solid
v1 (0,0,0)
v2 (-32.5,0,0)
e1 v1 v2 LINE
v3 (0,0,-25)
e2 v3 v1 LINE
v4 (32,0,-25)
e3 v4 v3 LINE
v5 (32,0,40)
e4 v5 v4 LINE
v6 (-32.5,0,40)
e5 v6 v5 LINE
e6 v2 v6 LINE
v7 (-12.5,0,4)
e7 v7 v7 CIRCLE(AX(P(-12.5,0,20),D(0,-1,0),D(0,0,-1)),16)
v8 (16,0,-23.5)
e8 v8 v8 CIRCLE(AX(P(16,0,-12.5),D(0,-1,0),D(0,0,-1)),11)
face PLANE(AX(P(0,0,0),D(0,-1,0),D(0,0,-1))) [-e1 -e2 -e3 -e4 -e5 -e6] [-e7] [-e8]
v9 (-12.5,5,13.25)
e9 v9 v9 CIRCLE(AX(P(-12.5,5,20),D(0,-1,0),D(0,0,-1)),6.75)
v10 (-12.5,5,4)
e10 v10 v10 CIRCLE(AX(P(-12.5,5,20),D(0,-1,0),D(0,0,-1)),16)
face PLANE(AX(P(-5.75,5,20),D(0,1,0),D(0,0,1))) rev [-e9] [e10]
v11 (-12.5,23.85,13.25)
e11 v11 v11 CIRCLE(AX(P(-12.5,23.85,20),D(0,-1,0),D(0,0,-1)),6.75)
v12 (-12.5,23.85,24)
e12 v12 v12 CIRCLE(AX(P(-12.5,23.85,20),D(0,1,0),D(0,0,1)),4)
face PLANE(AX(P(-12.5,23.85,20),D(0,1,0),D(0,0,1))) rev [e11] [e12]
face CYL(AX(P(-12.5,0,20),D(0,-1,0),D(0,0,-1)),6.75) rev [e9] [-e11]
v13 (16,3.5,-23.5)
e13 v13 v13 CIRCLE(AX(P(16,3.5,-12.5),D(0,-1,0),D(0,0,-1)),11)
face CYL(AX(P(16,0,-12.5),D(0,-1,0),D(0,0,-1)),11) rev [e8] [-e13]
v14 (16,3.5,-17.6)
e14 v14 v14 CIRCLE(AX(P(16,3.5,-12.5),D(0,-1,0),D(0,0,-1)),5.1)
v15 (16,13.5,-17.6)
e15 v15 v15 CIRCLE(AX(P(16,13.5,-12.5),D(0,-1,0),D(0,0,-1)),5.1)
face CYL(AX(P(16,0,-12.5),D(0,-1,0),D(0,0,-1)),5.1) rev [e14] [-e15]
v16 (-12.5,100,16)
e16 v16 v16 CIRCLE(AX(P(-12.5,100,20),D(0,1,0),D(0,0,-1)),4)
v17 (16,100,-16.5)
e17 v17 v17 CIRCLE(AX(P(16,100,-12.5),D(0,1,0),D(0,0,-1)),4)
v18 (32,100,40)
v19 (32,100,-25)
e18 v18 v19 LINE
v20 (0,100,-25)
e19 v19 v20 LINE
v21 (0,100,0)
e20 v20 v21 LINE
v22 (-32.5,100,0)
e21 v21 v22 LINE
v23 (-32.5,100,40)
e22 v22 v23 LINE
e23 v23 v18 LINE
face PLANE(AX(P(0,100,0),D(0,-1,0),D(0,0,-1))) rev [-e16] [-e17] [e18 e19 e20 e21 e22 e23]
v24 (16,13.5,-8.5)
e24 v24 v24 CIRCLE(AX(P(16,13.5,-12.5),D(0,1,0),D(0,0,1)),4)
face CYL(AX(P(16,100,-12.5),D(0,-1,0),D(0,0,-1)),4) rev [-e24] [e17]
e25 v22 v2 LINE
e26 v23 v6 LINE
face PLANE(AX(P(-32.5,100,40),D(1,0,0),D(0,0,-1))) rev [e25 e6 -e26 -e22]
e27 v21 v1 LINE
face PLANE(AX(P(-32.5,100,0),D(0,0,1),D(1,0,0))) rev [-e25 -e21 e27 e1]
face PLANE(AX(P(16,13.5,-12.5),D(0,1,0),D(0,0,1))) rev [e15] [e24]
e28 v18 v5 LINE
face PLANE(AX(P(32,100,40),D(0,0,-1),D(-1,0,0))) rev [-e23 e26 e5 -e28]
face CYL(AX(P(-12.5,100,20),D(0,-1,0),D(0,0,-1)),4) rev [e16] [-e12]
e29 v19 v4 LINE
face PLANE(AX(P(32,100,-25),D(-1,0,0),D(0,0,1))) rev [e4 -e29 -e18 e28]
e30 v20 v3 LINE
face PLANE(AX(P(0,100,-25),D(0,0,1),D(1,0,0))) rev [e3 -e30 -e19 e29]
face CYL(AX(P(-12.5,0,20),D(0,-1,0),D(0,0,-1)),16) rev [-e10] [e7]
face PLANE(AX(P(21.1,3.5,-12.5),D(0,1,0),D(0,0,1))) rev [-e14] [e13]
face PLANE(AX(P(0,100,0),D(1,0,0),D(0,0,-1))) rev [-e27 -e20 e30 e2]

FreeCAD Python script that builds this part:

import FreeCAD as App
import Part
import Sketcher

V = App.Vector
Q = App.Units.Quantity


def add_polygon(sketch, points):
    """Adds a closed chain of lines whose ends are joined by coincident constraints."""
    first, n = sketch.GeometryCount, len(points)
    for a, b in zip(points, points[1:] + points[:1]):
        sketch.addGeometry(Part.LineSegment(App.Vector(*a, 0), App.Vector(*b, 0)), False)
    for i in range(n):
        sketch.addConstraint(Sketcher.Constraint("Coincident", first + i, 2, first + (i + 1) % n, 1))

doc = App.newDocument("Part")
params = doc.addObject("Spreadsheet::Sheet", "Params")
for row, (alias, value) in enumerate([
    ("sketch1_diameter", "8 mm"),
    ("sketch1_width", "32 mm"),
    ("sketch1_height", "40 mm"),
    ("sketch1_height2", "65 mm"),
    ("sketch1_width2", "32.5 mm"),
    ("pad1_length", "100 mm"),
    ("sketch2_diameter", "13.5 mm"),
    ("hole_diameter", "13.5 mm"),
    ("hole_depth", "23.85 mm"),
    ("hole_cbore_diameter", "32 mm"),
    ("hole_cbore_depth", "5 mm"),
    ("sketch3_diameter", "10.2 mm"),
    ("hole2_diameter", "10.2 mm"),
    ("hole2_depth", "13.5 mm"),
    ("hole2_cbore_diameter", "22 mm"),
    ("hole2_cbore_depth", "3.5 mm"),
], start=1):
    params.set(f"A{row}", alias)
    params.set(f"B{row}", "=" + value)
    params.setAlias(f"B{row}", alias)

body = doc.addObject("PartDesign::Body", "Body")

sketch1 = body.newObject("Sketcher::SketchObject", "Sketch")
sketch1.AttachmentSupport = (doc.getObject("XZ_Plane"), [""])
sketch1.MapMode = "FlatFace"
add_polygon(sketch1, [(0, 0), (-32.5, 0), (-32.5, 40), (32, 40), (32, -25), (0, -25)])
sketch1.addGeometry(Part.Circle(V(-12.5, 20, 0), V(0, 0, 1), 4), False)
sketch1.addGeometry(Part.Circle(V(16, -12.5, 0), V(0, 0, 1), 4), False)
sketch1.addConstraint([
    Sketcher.Constraint("Horizontal", 0),
    Sketcher.Constraint("Vertical", 1),
    Sketcher.Constraint("Horizontal", 2),
    Sketcher.Constraint("Vertical", 3),
    Sketcher.Constraint("Horizontal", 4),
    Sketcher.Constraint("Vertical", 5),
    Sketcher.Constraint("Coincident", 5, 2, -1, 1),
    Sketcher.Constraint("Equal", 6, 7),
    Sketcher.Constraint("Diameter", 6, Q("8 mm")),
    Sketcher.Constraint("DistanceX", 4, 2, 4, 1, Q("32 mm")),
    Sketcher.Constraint("DistanceY", 1, 1, 1, 2, Q("40 mm")),
    Sketcher.Constraint("DistanceY", 3, 2, 3, 1, Q("65 mm")),
    Sketcher.Constraint("DistanceX", 0, 2, 0, 1, Q("32.5 mm")),
    Sketcher.Constraint("DistanceY", -1, 1, 6, 3, Q("20 mm")),
    Sketcher.Constraint("DistanceX", -1, 1, 7, 3, Q("16 mm")),
    Sketcher.Constraint("DistanceX", 0, 2, 6, 3, Q("20 mm")),
    Sketcher.Constraint("DistanceY", 7, 3, -1, 1, Q("12.5 mm")),
])
sketch1.setExpression("Constraints[14]", "Params.sketch1_diameter")
sketch1.setExpression("Constraints[15]", "Params.sketch1_width")
sketch1.setExpression("Constraints[16]", "Params.sketch1_height")
sketch1.setExpression("Constraints[17]", "Params.sketch1_height2")
sketch1.setExpression("Constraints[18]", "Params.sketch1_width2")
pad1 = body.newObject("PartDesign::Pad", "Pad")
pad1.Profile = sketch1
pad1.setExpression("Length", "Params.pad1_length")
pad1.Reversed = True

sketch2 = body.newObject("Sketcher::SketchObject", "Sketch001")
sketch2.AttachmentSupport = (doc.getObject("XZ_Plane"), [""])
sketch2.MapMode = "FlatFace"
sketch2.addGeometry(Part.Circle(V(-12, 20, 0), V(0, 0, 1), 7), False)
sketch2.addConstraint([
    Sketcher.Constraint("Diameter", 0, Q("13.5 mm")),
    Sketcher.Constraint("DistanceY", -1, 1, 0, 3, Q("20 mm")),
    Sketcher.Constraint("DistanceX", 0, 3, -1, 1, Q("12.5 mm")),
])
sketch2.setExpression("Constraints[0]", "Params.sketch2_diameter")
doc.recompute()
hole = body.newObject("PartDesign::Hole", "Hole")
hole.Profile = sketch2
hole.ThreadType = "None"
hole.setExpression("Diameter", "Params.hole_diameter")
hole.DepthType = "Dimension"
hole.setExpression("Depth", "Params.hole_depth")
hole.DrillPoint = "Flat"
hole.HoleCutType = "Counterbore"
hole.setExpression("HoleCutDiameter", "Params.hole_cbore_diameter")
hole.setExpression("HoleCutDepth", "Params.hole_cbore_depth")

sketch3 = body.newObject("Sketcher::SketchObject", "Sketch002")
sketch3.AttachmentSupport = (doc.getObject("XZ_Plane"), [""])
sketch3.MapMode = "FlatFace"
sketch3.addGeometry(Part.Circle(V(16, -12, 0), V(0, 0, 1), 5), False)
sketch3.addConstraint([
    Sketcher.Constraint("Diameter", 0, Q("10.2 mm")),
    Sketcher.Constraint("DistanceX", -1, 1, 0, 3, Q("16 mm")),
    Sketcher.Constraint("DistanceY", 0, 3, -1, 1, Q("12.5 mm")),
])
sketch3.setExpression("Constraints[0]", "Params.sketch3_diameter")
doc.recompute()
hole2 = body.newObject("PartDesign::Hole", "Hole001")
hole2.Profile = sketch3
hole2.ThreadType = "None"
hole2.setExpression("Diameter", "Params.hole2_diameter")
hole2.DepthType = "Dimension"
hole2.setExpression("Depth", "Params.hole2_depth")
hole2.DrillPoint = "Flat"
hole2.HoleCutType = "Counterbore"
hole2.setExpression("HoleCutDiameter", "Params.hole2_cbore_diameter")
hole2.setExpression("HoleCutDepth", "Params.hole2_cbore_depth")

doc.recompute()
